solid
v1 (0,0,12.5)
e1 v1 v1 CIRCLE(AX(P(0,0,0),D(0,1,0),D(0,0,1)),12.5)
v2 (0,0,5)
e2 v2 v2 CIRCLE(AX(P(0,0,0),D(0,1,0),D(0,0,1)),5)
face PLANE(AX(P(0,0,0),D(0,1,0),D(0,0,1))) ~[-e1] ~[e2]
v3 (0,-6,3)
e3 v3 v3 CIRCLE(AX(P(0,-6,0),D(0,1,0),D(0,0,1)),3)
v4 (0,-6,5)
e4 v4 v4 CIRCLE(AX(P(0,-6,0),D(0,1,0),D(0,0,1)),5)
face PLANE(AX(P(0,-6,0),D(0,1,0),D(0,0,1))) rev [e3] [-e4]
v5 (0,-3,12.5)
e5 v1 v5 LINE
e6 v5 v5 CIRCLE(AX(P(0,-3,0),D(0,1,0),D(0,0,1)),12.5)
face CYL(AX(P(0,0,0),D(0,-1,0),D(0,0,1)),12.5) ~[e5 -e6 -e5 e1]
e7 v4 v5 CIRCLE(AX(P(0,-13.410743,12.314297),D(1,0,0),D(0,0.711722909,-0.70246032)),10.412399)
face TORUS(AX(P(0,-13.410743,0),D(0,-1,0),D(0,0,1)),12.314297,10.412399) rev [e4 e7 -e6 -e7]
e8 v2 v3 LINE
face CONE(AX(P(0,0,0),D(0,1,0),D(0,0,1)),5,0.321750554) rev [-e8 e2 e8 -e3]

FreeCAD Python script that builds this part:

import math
import FreeCAD as App
import Part
import Sketcher

V = App.Vector

doc = App.newDocument("Part")
body = doc.addObject("PartDesign::Body", "Body")

# Sketch on YZ plane
sketch1 = body.newObject("Sketcher::SketchObject", "Sketch")
sketch1.AttachmentSupport = (doc.getObject("YZ_Plane"), [""])
sketch1.MapMode = "FlatFace"
sketch1.addGeometry([
    Part.LineSegment(V(-6, 5, 0), V(-6, 3, 0)),  # 0
    Part.LineSegment(V(-6, 3, 0), V(0, 5, 0)),  # 1
    Part.LineSegment(V(0, 5, 0), V(0, 12.5, 0)),  # 2
    Part.LineSegment(V(0, 12.5, 0), V(-3, 12.5, 0)),  # 3
    Part.ArcOfCircle(Part.Circle(V(-13.4, 12.3, 0), V(0, 0, 1), 10.4), math.radians(-45), math.radians(1)),  # 4
], False)
sketch1.addConstraint([
    Sketcher.Constraint("Coincident", 0, 2, 1, 1),
    Sketcher.Constraint("Coincident", 1, 2, 2, 1),
    Sketcher.Constraint("Coincident", 2, 2, 3, 1),
    Sketcher.Constraint("Coincident", 3, 2, 4, 2),
    Sketcher.Constraint("Coincident", 4, 1, 0, 1),
    Sketcher.Constraint("Vertical", 0),
    Sketcher.Constraint("Vertical", 2),
    Sketcher.Constraint("Horizontal", 3),
    Sketcher.Constraint("PointOnObject", 1, 2, -2),
    Sketcher.Constraint("Horizontal", 1, 2, 4, 1),
    Sketcher.Constraint("DistanceX", 3, 2, 3, 1, 3.0),
    Sketcher.Constraint("DistanceY", -1, 1, 0, 2, 3.0),
    Sketcher.Constraint("DistanceX", 0, 2, 3, 2, 3.0),
    Sketcher.Constraint("DistanceY", 0, 2, 0, 1, 2.0),
    Sketcher.Constraint("DistanceY", 2, 1, 2, 2, 7.5),
    Sketcher.Constraint("Radius", 4, 10.4126),
])
revolution = body.newObject("PartDesign::Revolution", "Revolution")
revolution.Profile = sketch1
revolution.ReferenceAxis = (sketch1, ["H_Axis"])
revolution.Angle = 360

doc.recompute()
